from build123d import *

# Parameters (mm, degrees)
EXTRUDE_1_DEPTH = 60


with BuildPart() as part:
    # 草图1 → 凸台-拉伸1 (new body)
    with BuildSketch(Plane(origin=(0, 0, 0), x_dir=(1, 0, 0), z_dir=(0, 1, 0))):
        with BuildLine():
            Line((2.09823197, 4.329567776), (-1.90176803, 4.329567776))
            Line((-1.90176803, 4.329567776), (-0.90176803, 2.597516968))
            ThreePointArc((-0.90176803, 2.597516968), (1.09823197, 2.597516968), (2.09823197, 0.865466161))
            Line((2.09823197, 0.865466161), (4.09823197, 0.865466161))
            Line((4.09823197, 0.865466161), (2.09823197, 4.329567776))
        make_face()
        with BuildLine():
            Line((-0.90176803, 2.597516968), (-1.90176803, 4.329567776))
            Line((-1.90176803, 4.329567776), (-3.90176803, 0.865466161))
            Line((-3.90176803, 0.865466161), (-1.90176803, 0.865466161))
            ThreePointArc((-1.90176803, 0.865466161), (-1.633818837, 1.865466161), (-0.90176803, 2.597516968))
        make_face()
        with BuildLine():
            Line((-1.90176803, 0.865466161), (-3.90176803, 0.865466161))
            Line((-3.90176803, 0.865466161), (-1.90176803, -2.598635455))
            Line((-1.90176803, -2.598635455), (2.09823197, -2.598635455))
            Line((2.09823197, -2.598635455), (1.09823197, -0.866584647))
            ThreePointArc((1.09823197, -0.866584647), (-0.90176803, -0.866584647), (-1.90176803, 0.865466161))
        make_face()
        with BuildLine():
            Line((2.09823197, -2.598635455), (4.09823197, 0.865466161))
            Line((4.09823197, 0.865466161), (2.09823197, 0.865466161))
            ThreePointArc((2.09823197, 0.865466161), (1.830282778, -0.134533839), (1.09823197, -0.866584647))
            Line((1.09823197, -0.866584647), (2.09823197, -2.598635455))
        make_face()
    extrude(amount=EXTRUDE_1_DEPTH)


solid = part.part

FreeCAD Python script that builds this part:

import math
import FreeCAD as App
import Part
import Sketcher
Q = App.Units.Quantity

doc = App.newDocument("Part")
body = doc.addObject("PartDesign::Body", "Body")

sketch1 = body.newObject("Sketcher::SketchObject", "Sketch")
sketch1.AttachmentSupport = (doc.getObject("XZ_Plane"), [""])
sketch1.MapMode = "FlatFace"
sketch1.addGeometry(Part.LineSegment(App.Vector(2.1, -4.3, 0), App.Vector(-1.9, -4.3, 0)), False)
sketch1.addGeometry(Part.LineSegment(App.Vector(-1.9, -4.3, 0), App.Vector(-3.9, -0.9, 0)), False)
sketch1.addGeometry(Part.LineSegment(App.Vector(-3.9, -0.9, 0), App.Vector(-1.9, 2.6, 0)), False)
sketch1.addGeometry(Part.LineSegment(App.Vector(-1.9, 2.6, 0), App.Vector(2.1, 2.6, 0)), False)
sketch1.addGeometry(Part.LineSegment(App.Vector(2.1, 2.6, 0), App.Vector(4.1, -0.9, 0)), False)
sketch1.addGeometry(Part.LineSegment(App.Vector(4.1, -0.9, 0), App.Vector(2.1, -4.3, 0)), False)
sketch1.addGeometry(Part.ArcOfCircle(Part.Circle(App.Vector(0.1, -0.9, 0), App.Vector(0, 0, 1), 2), math.radians(60), math.radians(180)), False)
sketch1.addGeometry(Part.ArcOfCircle(Part.Circle(App.Vector(0.1, -0.9, 0), App.Vector(0, 0, 1), 2), math.radians(-180), math.radians(-120)), False)
sketch1.addGeometry(Part.ArcOfCircle(Part.Circle(App.Vector(0.1, -0.9, 0), App.Vector(0, 0, 1), 2), math.radians(-120), math.radians(0)), False)
sketch1.addGeometry(Part.ArcOfCircle(Part.Circle(App.Vector(0.1, -0.9, 0), App.Vector(0, 0, 1), 2), math.radians(0), math.radians(60)), False)
sketch1.addConstraint(Sketcher.Constraint("Coincident", 0, 2, 1, 1))
sketch1.addConstraint(Sketcher.Constraint("Coincident", 1, 2, 2, 1))
sketch1.addConstraint(Sketcher.Constraint("Coincident", 2, 2, 3, 1))
sketch1.addConstraint(Sketcher.Constraint("Coincident", 3, 2, 4, 1))
sketch1.addConstraint(Sketcher.Constraint("Coincident", 4, 2, 5, 1))
sketch1.addConstraint(Sketcher.Constraint("Coincident", 5, 2, 0, 1))
sketch1.addConstraint(Sketcher.Constraint("Tangent", 6, 2, 7, 1))
sketch1.addConstraint(Sketcher.Constraint("Tangent", 7, 2, 8, 1))
sketch1.addConstraint(Sketcher.Constraint("Tangent", 8, 2, 9, 1))
sketch1.addConstraint(Sketcher.Constraint("Tangent", 9, 2, 6, 1))
sketch1.addConstraint(Sketcher.Constraint("Horizontal", 0))
sketch1.addConstraint(Sketcher.Constraint("Horizontal", 3))
sketch1.addConstraint(Sketcher.Constraint("Equal", 6, 7))
sketch1.addConstraint(Sketcher.Constraint("Parallel", 1, 4))
sketch1.addConstraint(Sketcher.Constraint("Parallel", 2, 5))
sketch1.addConstraint(Sketcher.Constraint("Horizontal", 9, 3, 1, 2))
sketch1.addConstraint(Sketcher.Constraint("Horizontal", 1, 2, 4, 2))
sketch1.addConstraint(Sketcher.Constraint("Horizontal", 4, 2, 6, 2))
sketch1.addConstraint(Sketcher.Constraint("Horizontal", 6, 2, 8, 2))
sketch1.addConstraint(Sketcher.Constraint("Vertical", 0, 2, 2, 2))
sketch1.addConstraint(Sketcher.Constraint("Vertical", 3, 2, 5, 2))
sketch1.addConstraint(Sketcher.Constraint("Vertical", 2, 2, 6, 2))
sketch1.addConstraint(Sketcher.Constraint("Vertical", 5, 2, 8, 2))
sketch1.addConstraint(Sketcher.Constraint("Radius", 6, 2.0))
sketch1.addConstraint(Sketcher.Constraint("Angle", 1, Q("120 deg")))
sketch1.addConstraint(Sketcher.Constraint("Distance", 1, 4.0))
sketch1.addConstraint(Sketcher.Constraint("DistanceX", 6, 2, 7, 2, 1.0))
sketch1.addConstraint(Sketcher.Constraint("DistanceX", 7, 3, 9, 2, 1.0))
sketch1.addConstraint(Sketcher.Constraint("DistanceX", -1, 1, 6, 3, 0.098232))
sketch1.addConstraint(Sketcher.Constraint("DistanceY", 6, 3, -1, 1, 0.865466))
pad1 = body.newObject("PartDesign::Pad", "Pad")
pad1.Profile = sketch1
pad1.Length = 60
pad1.Reversed = True

doc.recompute()
